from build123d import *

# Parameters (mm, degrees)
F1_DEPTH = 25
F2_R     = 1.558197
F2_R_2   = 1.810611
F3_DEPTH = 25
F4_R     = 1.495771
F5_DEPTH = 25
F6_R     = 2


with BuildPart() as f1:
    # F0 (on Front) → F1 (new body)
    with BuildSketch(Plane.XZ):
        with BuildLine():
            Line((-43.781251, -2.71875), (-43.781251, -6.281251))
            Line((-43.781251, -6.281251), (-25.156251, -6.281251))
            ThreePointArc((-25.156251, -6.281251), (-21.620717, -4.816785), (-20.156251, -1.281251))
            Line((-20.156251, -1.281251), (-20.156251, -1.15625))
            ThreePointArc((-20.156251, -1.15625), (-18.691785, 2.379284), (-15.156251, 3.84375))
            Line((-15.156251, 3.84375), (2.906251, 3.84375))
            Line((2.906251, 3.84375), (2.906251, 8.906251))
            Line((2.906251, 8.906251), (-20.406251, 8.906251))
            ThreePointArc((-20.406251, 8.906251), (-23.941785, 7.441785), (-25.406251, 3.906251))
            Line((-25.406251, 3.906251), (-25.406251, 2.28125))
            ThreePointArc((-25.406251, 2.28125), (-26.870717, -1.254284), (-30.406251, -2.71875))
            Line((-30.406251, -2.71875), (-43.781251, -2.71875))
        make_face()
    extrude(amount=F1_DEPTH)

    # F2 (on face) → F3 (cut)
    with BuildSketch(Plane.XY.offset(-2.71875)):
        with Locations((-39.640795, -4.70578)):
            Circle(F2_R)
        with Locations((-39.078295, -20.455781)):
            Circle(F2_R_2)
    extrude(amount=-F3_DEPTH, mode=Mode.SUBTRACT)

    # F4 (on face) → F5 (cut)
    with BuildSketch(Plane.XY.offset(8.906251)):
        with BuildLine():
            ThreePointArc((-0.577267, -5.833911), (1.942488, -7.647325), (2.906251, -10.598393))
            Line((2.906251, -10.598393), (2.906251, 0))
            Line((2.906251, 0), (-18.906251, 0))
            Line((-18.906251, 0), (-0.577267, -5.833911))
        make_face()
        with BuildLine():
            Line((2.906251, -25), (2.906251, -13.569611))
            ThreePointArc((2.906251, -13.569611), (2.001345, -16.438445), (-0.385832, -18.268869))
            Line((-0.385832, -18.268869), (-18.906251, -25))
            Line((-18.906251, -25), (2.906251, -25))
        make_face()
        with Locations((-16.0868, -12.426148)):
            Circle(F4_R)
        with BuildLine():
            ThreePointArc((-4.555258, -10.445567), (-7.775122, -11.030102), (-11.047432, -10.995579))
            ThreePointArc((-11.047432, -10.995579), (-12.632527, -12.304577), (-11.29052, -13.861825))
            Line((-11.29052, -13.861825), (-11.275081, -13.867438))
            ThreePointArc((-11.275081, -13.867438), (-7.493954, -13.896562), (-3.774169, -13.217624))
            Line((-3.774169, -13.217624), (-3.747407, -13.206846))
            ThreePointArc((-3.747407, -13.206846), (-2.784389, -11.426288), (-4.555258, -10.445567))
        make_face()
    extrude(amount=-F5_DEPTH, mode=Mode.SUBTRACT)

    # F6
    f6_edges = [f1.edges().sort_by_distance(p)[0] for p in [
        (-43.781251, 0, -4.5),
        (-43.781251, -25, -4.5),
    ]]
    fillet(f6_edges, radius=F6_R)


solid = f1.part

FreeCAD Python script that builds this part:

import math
import FreeCAD as App
import Part
import Sketcher
from FreeCAD import Vector


def edges_at(feature, points):
    """Names of the edges that pass closest to the given points."""
    edges = feature.Shape.Edges
    near = lambda p: min(range(len(edges)), key=lambda i: edges[i].distToShape(Part.Vertex(*p))[0])
    return sorted({f"Edge{near(p) + 1}" for p in points})

doc = App.newDocument("Part")
body = doc.addObject("PartDesign::Body", "Body")

# Sketch on XZ plane
sketch1 = body.newObject("Sketcher::SketchObject", "Sketch")
sketch1.AttachmentSupport = (doc.getObject("XZ_Plane"), [""])
sketch1.MapMode = "FlatFace"
sketch1.addGeometry([
    Part.LineSegment(Vector(-43.781251, -2.71875, 0), Vector(-43.781251, -6.281251, 0)),  # 0
    Part.LineSegment(Vector(-43.781251, -6.281251, 0), Vector(-25.156251, -6.281251, 0)),  # 1
    Part.ArcOfCircle(Part.Circle(Vector(-25.156251, -1.281251, 0), Vector(0, 0, 1), 5), math.radians(-90.000004), math.radians(0.000004)),  # 2
    Part.LineSegment(Vector(-20.156251, -1.281251, 0), Vector(-20.156251, -1.15625, 0)),  # 3
    Part.ArcOfCircle(Part.Circle(Vector(-15.156251, -1.15625, 0), Vector(0, 0, 1), 5), math.radians(89.999996), math.radians(180.000004)),  # 4
    Part.LineSegment(Vector(-15.156251, 3.84375, 0), Vector(2.906251, 3.84375, 0)),  # 5
    Part.LineSegment(Vector(2.906251, 3.84375, 0), Vector(2.906251, 8.906251, 0)),  # 6
    Part.LineSegment(Vector(2.906251, 8.906251, 0), Vector(-20.406251, 8.906251, 0)),  # 7
    Part.ArcOfCircle(Part.Circle(Vector(-20.406251, 3.906251, 0), Vector(0, 0, 1), 5), math.radians(89.999996), math.radians(180.000004)),  # 8
    Part.LineSegment(Vector(-25.406251, 3.906251, 0), Vector(-25.406251, 2.28125, 0)),  # 9
    Part.ArcOfCircle(Part.Circle(Vector(-30.406251, 2.28125, 0), Vector(0, 0, 1), 5), math.radians(-90.000004), math.radians(0.000004)),  # 10
    Part.LineSegment(Vector(-30.406251, -2.71875, 0), Vector(-43.781251, -2.71875, 0)),  # 11
], False)
sketch1.addConstraint([
    Sketcher.Constraint("Coincident", 0, 2, 1, 1),
    Sketcher.Constraint("Tangent", 1, 2, 2, 1),
    Sketcher.Constraint("Tangent", 2, 2, 3, 1),
    Sketcher.Constraint("Tangent", 3, 2, 4, 2),
    Sketcher.Constraint("Tangent", 4, 1, 5, 1),
    Sketcher.Constraint("Coincident", 5, 2, 6, 1),
    Sketcher.Constraint("Coincident", 6, 2, 7, 1),
    Sketcher.Constraint("Tangent", 7, 2, 8, 1),
    Sketcher.Constraint("Tangent", 8, 2, 9, 1),
    Sketcher.Constraint("Tangent", 9, 2, 10, 2),
    Sketcher.Constraint("Tangent", 10, 1, 11, 1),
    Sketcher.Constraint("Coincident", 11, 2, 0, 1),
    Sketcher.Constraint("Vertical", 0),
    Sketcher.Constraint("Horizontal", 1),
    Sketcher.Constraint("Vertical", 3),
    Sketcher.Constraint("Horizontal", 5),
    Sketcher.Constraint("Vertical", 6),
    Sketcher.Constraint("Horizontal", 7),
    Sketcher.Constraint("Vertical", 9),
    Sketcher.Constraint("Horizontal", 11),
    Sketcher.Constraint("Equal", 2, 4),
    Sketcher.Constraint("Equal", 4, 8),
    Sketcher.Constraint("Equal", 8, 10),
    Sketcher.Constraint("Radius", 2, 5.0),
    Sketcher.Constraint("DistanceX", 1, 1, 1, 2, 18.625),
    Sketcher.Constraint("DistanceX", 11, 2, 11, 1, 13.375),
    Sketcher.Constraint("DistanceY", 3, 1, 3, 2, 0.125001),
    Sketcher.Constraint("DistanceY", 9, 2, 9, 1, 1.625001),
    Sketcher.Constraint("DistanceX", 5, 1, 5, 2, 18.062502),
    Sketcher.Constraint("DistanceY", 0, 2, 0, 1, 3.562501),
    Sketcher.Constraint("DistanceX", 2, 3, -1, 1, 25.156251),
    Sketcher.Constraint("DistanceY", 2, 3, -1, 1, 1.281251),
])
pad1 = body.newObject("PartDesign::Pad", "Pad")
pad1.Profile = sketch1
pad1.Length = 25

# Sketch on XY plane
sketch2 = body.newObject("Sketcher::SketchObject", "Sketch001")
sketch2.AttachmentSupport = (doc.getObject("XY_Plane"), [""])
sketch2.MapMode = "FlatFace"
sketch2.AttachmentOffset = App.Placement(Vector(0, 0, -2.71875), App.Rotation())
sketch2.addGeometry([
    Part.Circle(Vector(-39.640795, -4.70578, 0), Vector(0, 0, 1), 1.558197),
    Part.Circle(Vector(-39.078295, -20.455781, 0), Vector(0, 0, 1), 1.810611),
], False)
sketch2.addConstraint([
    Sketcher.Constraint("Diameter", 1, 3.621222),
    Sketcher.Constraint("DistanceY", 1, 3, 0, 3, 15.750001),
    Sketcher.Constraint("Diameter", 0, 3.116394),
    Sketcher.Constraint("DistanceX", 0, 3, 1, 3, 0.5625),
    Sketcher.Constraint("DistanceY", 0, 3, -1, 1, 4.70578),
    Sketcher.Constraint("DistanceX", 0, 3, -1, 1, 39.640795),
])
pocket1 = body.newObject("PartDesign::Pocket", "Pocket")
pocket1.Profile = sketch2
pocket1.Length = 25

# Sketch on XY plane
sketch3 = body.newObject("Sketcher::SketchObject", "Sketch002")
sketch3.AttachmentSupport = (doc.getObject("XY_Plane"), [""])
sketch3.MapMode = "FlatFace"
sketch3.AttachmentOffset = App.Placement(Vector(0, 0, 8.906251), App.Rotation())
sketch3.addGeometry([
    Part.ArcOfCircle(Part.Circle(Vector(-2.093746, -10.59839, 0), Vector(0, 0, 1), 4.999997), math.radians(-0.000034), math.radians(72.344326)),  # 0
    Part.LineSegment(Vector(2.906251, -10.598393, 0), Vector(2.906251, 0, 0)),  # 1
    Part.LineSegment(Vector(2.906251, 0, 0), Vector(-18.906251, 0, 0)),  # 2
    Part.LineSegment(Vector(-18.906251, 0, 0), Vector(-0.577267, -5.833911, 0)),  # 3
    Part.LineSegment(Vector(2.906251, -25, 0), Vector(2.906251, -13.569611, 0)),  # 4
    Part.ArcOfCircle(Part.Circle(Vector(-2.093749, -13.569612, 0), Vector(0, 0, 1), 5), math.radians(-70.026626), math.radians(0.000006)),  # 5
    Part.LineSegment(Vector(-0.385832, -18.268869, 0), Vector(-18.906251, -25, 0)),  # 6
    Part.LineSegment(Vector(-18.906251, -25, 0), Vector(2.906251, -25, 0)),  # 7
    Part.Circle(Vector(-16.0868, -12.426148, 0), Vector(0, 0, 1), 1.495771),  # 8
    Part.ArcOfCircle(Part.Circle(Vector(-9.230252, 6.145816, 0), Vector(0, 0, 1), 17.237446), math.radians(-96.051392), math.radians(-74.263626)),  # 9
    Part.ArcOfCircle(Part.Circle(Vector(-11.199088, -12.426148, 0), Vector(0, 0, 1), 1.438585), math.radians(83.948632), math.radians(266.355992)),  # 10
    Part.LineSegment(Vector(-11.29052, -13.861825, 0), Vector(-11.275081, -13.867438, 0)),  # 11
    Part.ArcOfCircle(Part.Circle(Vector(-9.230254, 6.145829, 0), Vector(0, 0, 1), 20.117459), math.radians(-95.83387), math.radians(-74.263633)),  # 12
    Part.LineSegment(Vector(-3.774169, -13.217624, 0), Vector(-3.747407, -13.206846, 0)),  # 13
    Part.ArcOfCircle(Part.Circle(Vector(-4.165097, -11.830234, 0), Vector(0, 0, 1), 1.438585), math.radians(-73.121215), math.radians(105.736374)),  # 14
], False)
sketch3.addConstraint([
    Sketcher.Constraint("Tangent", 0, 1, 1, 1),
    Sketcher.Constraint("Coincident", 1, 2, 2, 1),
    Sketcher.Constraint("Coincident", 2, 2, 3, 1),
    Sketcher.Constraint("Tangent", 3, 2, 0, 2),
    Sketcher.Constraint("Tangent", 4, 2, 5, 2),
    Sketcher.Constraint("Tangent", 5, 1, 6, 1),
    Sketcher.Constraint("Coincident", 6, 2, 7, 1),
    Sketcher.Constraint("Coincident", 7, 2, 4, 1),
    Sketcher.Constraint("Tangent", 9, 1, 10, 1),
    Sketcher.Constraint("Coincident", 10, 2, 11, 1),
    Sketcher.Constraint("Coincident", 11, 2, 12, 1),
    Sketcher.Constraint("Coincident", 12, 2, 13, 1),
    Sketcher.Constraint("Coincident", 13, 2, 14, 1),
    Sketcher.Constraint("Tangent", 14, 2, 9, 2),
    Sketcher.Constraint("Vertical", 1),
    Sketcher.Constraint("Horizontal", 2),
    Sketcher.Constraint("Vertical", 4),
    Sketcher.Constraint("Horizontal", 7),
    Sketcher.Constraint("Equal", 10, 14),
    Sketcher.Constraint("PointOnObject", 1, 2, -1),
    Sketcher.Constraint("Horizontal", 8, 3, 10, 3),
    Sketcher.Constraint("Vertical", 9, 3, 12, 3),
    Sketcher.Constraint("Vertical", 1, 2, 4, 2),
    Sketcher.Constraint("Vertical", 2, 2, 6, 2),
    Sketcher.Constraint("Radius", 5, 5.0),
    Sketcher.Constraint("DistanceY", 6, 2, -1, 1, 25.0),
    Sketcher.Constraint("Diameter", 8, 2.991542),
    Sketcher.Constraint("Radius", 12, 20.117459),
    Sketcher.Constraint("Radius", 0, 4.999997),
    Sketcher.Constraint("Radius", 9, 17.237446),
    Sketcher.Constraint("Radius", 10, 1.438585),
    Sketcher.Constraint("DistanceX", 2, 2, 9, 3, 9.675999),
    Sketcher.Constraint("DistanceY", 4, 1, 4, 2, 11.430389),
    Sketcher.Constraint("DistanceX", 8, 3, -1, 1, 16.0868),
    Sketcher.Constraint("DistanceY", 5, 3, 3, 2, 7.735701),
    Sketcher.Constraint("DistanceX", 6, 2, 5, 3, 16.812502),
    Sketcher.Constraint("Distance", 13, 0.028851),
    Sketcher.Constraint("DistanceX", 5, 3, -1, 1, 2.093749),
    Sketcher.Constraint("DistanceY", 10, 3, -1, 1, 12.426148),
    Sketcher.Constraint("DistanceY", -1, 1, 12, 3, 6.145829),
    Sketcher.Constraint("DistanceX", 9, 1, -1, 1, 11.047432),
    Sketcher.Constraint("DistanceX", 10, 2, -1, 1, 11.29052),
    Sketcher.Constraint("DistanceX", 11, 2, -1, 1, 11.275081),
    Sketcher.Constraint("DistanceX", 12, 2, -1, 1, 3.774169),
    Sketcher.Constraint("DistanceX", 14, 3, 0, 3, 2.071351),
])
pocket2 = body.newObject("PartDesign::Pocket", "Pocket001")
pocket2.Profile = sketch3
pocket2.Length = 25
doc.recompute()

fillet = body.newObject("PartDesign::Fillet", "Fillet")
fillet.Base = (pocket2, edges_at(pocket2, [(-43.781, 0, -4.5), (-43.781, -25, -4.5)]))
fillet.Radius = 2

doc.recompute()
